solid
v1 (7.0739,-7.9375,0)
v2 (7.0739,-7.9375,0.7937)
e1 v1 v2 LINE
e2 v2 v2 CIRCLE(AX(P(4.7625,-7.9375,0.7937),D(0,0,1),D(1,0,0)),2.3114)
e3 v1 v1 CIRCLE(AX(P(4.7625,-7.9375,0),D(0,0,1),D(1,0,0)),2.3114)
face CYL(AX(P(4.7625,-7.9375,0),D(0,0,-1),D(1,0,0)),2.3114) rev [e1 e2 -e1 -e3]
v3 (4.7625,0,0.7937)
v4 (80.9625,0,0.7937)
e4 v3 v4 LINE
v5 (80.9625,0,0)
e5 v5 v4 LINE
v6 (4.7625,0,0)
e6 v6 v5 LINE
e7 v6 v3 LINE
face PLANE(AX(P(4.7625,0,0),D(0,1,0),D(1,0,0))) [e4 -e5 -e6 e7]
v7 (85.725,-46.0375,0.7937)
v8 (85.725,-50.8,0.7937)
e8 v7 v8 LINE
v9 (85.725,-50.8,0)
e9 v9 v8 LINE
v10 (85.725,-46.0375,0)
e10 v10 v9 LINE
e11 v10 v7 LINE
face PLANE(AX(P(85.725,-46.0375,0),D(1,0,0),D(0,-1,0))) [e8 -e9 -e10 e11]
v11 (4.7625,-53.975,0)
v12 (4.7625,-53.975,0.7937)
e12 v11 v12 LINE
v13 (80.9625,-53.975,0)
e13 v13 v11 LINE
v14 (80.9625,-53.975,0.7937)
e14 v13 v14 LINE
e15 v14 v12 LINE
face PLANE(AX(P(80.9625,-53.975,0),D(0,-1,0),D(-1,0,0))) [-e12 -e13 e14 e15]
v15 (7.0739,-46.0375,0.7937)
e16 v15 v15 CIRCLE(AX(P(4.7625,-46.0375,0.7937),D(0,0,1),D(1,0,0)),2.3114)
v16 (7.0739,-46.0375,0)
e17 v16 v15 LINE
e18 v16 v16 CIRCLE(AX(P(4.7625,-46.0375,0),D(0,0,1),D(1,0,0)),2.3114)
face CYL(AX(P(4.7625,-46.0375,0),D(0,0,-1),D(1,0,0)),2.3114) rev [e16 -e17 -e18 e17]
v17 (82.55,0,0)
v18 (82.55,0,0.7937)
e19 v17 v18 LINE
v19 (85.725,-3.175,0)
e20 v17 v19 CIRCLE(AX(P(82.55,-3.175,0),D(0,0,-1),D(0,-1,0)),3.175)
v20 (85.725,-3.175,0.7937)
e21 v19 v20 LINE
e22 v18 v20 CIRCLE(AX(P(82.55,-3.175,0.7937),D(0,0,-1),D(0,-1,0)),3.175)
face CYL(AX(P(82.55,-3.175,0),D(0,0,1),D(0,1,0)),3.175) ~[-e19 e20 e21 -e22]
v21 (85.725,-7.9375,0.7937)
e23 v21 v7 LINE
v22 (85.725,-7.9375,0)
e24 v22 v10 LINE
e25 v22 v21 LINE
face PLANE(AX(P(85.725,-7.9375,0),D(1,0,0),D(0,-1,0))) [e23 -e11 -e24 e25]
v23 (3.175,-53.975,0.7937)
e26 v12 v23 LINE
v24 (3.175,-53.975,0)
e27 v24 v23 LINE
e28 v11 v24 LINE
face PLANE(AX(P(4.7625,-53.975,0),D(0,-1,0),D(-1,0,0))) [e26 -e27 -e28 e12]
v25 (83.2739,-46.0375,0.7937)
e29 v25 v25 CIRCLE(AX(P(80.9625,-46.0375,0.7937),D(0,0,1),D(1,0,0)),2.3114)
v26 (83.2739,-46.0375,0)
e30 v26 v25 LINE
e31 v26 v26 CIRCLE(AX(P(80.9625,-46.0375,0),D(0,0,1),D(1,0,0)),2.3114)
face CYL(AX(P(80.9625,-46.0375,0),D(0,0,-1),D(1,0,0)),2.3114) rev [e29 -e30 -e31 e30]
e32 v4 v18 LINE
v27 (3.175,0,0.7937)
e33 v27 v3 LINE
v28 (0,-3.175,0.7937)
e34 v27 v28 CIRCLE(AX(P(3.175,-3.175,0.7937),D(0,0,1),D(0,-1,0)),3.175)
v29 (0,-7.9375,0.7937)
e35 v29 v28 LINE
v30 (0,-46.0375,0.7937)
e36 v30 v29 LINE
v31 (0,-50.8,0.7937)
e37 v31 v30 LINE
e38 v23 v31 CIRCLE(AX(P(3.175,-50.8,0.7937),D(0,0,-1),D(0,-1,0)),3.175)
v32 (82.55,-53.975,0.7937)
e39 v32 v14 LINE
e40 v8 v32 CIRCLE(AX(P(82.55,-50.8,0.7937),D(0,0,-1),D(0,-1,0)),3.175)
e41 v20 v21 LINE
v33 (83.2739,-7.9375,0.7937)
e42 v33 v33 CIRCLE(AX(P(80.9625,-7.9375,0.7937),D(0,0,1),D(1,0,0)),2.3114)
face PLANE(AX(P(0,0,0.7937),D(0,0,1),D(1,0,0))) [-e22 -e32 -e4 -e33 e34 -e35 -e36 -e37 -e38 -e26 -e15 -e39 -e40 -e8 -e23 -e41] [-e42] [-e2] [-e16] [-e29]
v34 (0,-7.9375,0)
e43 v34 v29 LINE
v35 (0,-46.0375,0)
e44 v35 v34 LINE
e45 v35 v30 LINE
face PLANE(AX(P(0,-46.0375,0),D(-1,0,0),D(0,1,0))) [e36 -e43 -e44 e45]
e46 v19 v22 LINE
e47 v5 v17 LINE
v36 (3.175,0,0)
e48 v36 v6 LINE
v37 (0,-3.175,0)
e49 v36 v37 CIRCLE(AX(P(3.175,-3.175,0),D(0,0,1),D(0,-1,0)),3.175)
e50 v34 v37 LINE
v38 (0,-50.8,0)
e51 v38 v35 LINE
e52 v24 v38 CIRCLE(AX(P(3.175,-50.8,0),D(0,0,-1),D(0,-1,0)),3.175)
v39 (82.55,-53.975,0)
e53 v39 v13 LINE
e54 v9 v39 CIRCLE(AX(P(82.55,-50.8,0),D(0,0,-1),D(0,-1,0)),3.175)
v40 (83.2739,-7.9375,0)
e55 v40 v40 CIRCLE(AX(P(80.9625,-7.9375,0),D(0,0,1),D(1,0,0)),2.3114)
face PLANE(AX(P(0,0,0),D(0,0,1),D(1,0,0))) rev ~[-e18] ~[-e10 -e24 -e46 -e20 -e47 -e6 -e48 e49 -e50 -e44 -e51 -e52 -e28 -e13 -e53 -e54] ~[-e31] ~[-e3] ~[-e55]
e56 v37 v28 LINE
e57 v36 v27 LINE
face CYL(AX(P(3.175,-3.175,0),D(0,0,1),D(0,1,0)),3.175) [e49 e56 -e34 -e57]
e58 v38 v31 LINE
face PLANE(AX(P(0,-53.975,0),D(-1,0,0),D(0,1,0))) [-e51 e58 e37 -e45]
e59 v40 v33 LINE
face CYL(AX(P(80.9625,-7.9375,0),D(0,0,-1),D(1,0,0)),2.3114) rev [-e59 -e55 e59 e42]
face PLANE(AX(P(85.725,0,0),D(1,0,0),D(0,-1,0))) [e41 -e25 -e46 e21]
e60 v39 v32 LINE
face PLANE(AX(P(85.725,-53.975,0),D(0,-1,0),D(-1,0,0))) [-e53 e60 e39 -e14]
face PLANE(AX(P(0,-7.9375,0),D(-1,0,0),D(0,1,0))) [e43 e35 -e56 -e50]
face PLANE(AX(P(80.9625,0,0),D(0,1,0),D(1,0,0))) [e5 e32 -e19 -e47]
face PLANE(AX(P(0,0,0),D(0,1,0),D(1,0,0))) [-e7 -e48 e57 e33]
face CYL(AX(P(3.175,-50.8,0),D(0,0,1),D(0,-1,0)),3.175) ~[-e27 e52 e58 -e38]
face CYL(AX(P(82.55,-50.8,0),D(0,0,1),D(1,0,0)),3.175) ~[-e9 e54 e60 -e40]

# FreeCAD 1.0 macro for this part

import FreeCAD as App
import Part
import Sketcher
Q = App.Units.Quantity


def edges_at(feature, points):
    """Names of the edges that pass closest to the given points."""
    edges = feature.Shape.Edges
    near = lambda p: min(range(len(edges)), key=lambda i: edges[i].distToShape(Part.Vertex(*p))[0])
    return sorted({f"Edge{near(p) + 1}" for p in points})


def add_polygon(sketch, points):
    """Adds a closed chain of lines whose ends are joined by coincident constraints."""
    first, n = sketch.GeometryCount, len(points)
    for a, b in zip(points, points[1:] + points[:1]):
        sketch.addGeometry(Part.LineSegment(App.Vector(*a, 0), App.Vector(*b, 0)), False)
    for i in range(n):
        sketch.addConstraint(Sketcher.Constraint("Coincident", first + i, 2, first + (i + 1) % n, 1))

doc = App.newDocument("Part")
params = doc.addObject("Spreadsheet::Sheet", "Params")
for row, (alias, value) in enumerate([
    ("sketch1_diameter", "0.182 in"),
    ("sketch1_width", "3.375 in"),
    ("sketch1_height", "2.125 in"),
    ("pad1_length", "0.031248 in"),
    ("fillet_radius", "0.125 in"),
], start=1):
    params.set(f"A{row}", alias)
    params.set(f"B{row}", "=" + value)
    params.setAlias(f"B{row}", alias)

body = doc.addObject("PartDesign::Body", "Body")

sketch1 = body.newObject("Sketcher::SketchObject", "Sketch")
sketch1.AttachmentSupport = (doc.getObject("XY_Plane"), [""])
sketch1.MapMode = "FlatFace"
add_polygon(sketch1, [(85.7, 0), (0, 0), (0, -54), (85.7, -54)])
sketch1.addGeometry(Part.Circle(App.Vector(4.8, -46, 0), App.Vector(0, 0, 1), 2.3), False)
sketch1.addGeometry(Part.Circle(App.Vector(81, -46, 0), App.Vector(0, 0, 1), 2.3), False)
sketch1.addGeometry(Part.Circle(App.Vector(4.8, -7.9, 0), App.Vector(0, 0, 1), 2.3), False)
sketch1.addGeometry(Part.Circle(App.Vector(81, -7.9, 0), App.Vector(0, 0, 1), 2.3), False)
sketch1.addConstraint([
    Sketcher.Constraint("Horizontal", 0),
    Sketcher.Constraint("Vertical", 1),
    Sketcher.Constraint("Horizontal", 2),
    Sketcher.Constraint("Vertical", 3),
    Sketcher.Constraint("Coincident", 0, 2, -1, 1),
    Sketcher.Constraint("Equal", 4, 5),
    Sketcher.Constraint("Equal", 5, 6),
    Sketcher.Constraint("Equal", 6, 7),
    Sketcher.Constraint("Horizontal", 4, 3, 5, 3),
    Sketcher.Constraint("Horizontal", 6, 3, 7, 3),
    Sketcher.Constraint("Vertical", 4, 3, 6, 3),
    Sketcher.Constraint("Vertical", 5, 3, 7, 3),
    Sketcher.Constraint("Diameter", 4, Q("0.182 in")),
    Sketcher.Constraint("DistanceX", 0, 2, 0, 1, Q("3.375 in")),
    Sketcher.Constraint("DistanceY", 1, 2, 1, 1, Q("2.125 in")),
    Sketcher.Constraint("DistanceX", 4, 3, 5, 3, Q("3 in")),
    Sketcher.Constraint("DistanceY", 4, 3, 6, 3, Q("1.5 in")),
    Sketcher.Constraint("DistanceX", -1, 1, 4, 3, Q("0.1875 in")),
    Sketcher.Constraint("DistanceY", 4, 3, -1, 1, Q("1.8125 in")),
])
sketch1.setExpression("Constraints[16]", "Params.sketch1_diameter")
sketch1.setExpression("Constraints[17]", "Params.sketch1_width")
sketch1.setExpression("Constraints[18]", "Params.sketch1_height")
pad1 = body.newObject("PartDesign::Pad", "Pad")
pad1.Profile = sketch1
pad1.setExpression("Length", "Params.pad1_length")
doc.recompute()

fillet = body.newObject("PartDesign::Fillet", "Fillet")
fillet.Base = (pad1, edges_at(pad1, [
    (0, 0, 0.397),
    (0, -53.975, 0.397),
    (85.725, 0, 0.397),
    (85.725, -53.975, 0.397),
]))
fillet.setExpression("Radius", "Params.fillet_radius")

doc.recompute()
